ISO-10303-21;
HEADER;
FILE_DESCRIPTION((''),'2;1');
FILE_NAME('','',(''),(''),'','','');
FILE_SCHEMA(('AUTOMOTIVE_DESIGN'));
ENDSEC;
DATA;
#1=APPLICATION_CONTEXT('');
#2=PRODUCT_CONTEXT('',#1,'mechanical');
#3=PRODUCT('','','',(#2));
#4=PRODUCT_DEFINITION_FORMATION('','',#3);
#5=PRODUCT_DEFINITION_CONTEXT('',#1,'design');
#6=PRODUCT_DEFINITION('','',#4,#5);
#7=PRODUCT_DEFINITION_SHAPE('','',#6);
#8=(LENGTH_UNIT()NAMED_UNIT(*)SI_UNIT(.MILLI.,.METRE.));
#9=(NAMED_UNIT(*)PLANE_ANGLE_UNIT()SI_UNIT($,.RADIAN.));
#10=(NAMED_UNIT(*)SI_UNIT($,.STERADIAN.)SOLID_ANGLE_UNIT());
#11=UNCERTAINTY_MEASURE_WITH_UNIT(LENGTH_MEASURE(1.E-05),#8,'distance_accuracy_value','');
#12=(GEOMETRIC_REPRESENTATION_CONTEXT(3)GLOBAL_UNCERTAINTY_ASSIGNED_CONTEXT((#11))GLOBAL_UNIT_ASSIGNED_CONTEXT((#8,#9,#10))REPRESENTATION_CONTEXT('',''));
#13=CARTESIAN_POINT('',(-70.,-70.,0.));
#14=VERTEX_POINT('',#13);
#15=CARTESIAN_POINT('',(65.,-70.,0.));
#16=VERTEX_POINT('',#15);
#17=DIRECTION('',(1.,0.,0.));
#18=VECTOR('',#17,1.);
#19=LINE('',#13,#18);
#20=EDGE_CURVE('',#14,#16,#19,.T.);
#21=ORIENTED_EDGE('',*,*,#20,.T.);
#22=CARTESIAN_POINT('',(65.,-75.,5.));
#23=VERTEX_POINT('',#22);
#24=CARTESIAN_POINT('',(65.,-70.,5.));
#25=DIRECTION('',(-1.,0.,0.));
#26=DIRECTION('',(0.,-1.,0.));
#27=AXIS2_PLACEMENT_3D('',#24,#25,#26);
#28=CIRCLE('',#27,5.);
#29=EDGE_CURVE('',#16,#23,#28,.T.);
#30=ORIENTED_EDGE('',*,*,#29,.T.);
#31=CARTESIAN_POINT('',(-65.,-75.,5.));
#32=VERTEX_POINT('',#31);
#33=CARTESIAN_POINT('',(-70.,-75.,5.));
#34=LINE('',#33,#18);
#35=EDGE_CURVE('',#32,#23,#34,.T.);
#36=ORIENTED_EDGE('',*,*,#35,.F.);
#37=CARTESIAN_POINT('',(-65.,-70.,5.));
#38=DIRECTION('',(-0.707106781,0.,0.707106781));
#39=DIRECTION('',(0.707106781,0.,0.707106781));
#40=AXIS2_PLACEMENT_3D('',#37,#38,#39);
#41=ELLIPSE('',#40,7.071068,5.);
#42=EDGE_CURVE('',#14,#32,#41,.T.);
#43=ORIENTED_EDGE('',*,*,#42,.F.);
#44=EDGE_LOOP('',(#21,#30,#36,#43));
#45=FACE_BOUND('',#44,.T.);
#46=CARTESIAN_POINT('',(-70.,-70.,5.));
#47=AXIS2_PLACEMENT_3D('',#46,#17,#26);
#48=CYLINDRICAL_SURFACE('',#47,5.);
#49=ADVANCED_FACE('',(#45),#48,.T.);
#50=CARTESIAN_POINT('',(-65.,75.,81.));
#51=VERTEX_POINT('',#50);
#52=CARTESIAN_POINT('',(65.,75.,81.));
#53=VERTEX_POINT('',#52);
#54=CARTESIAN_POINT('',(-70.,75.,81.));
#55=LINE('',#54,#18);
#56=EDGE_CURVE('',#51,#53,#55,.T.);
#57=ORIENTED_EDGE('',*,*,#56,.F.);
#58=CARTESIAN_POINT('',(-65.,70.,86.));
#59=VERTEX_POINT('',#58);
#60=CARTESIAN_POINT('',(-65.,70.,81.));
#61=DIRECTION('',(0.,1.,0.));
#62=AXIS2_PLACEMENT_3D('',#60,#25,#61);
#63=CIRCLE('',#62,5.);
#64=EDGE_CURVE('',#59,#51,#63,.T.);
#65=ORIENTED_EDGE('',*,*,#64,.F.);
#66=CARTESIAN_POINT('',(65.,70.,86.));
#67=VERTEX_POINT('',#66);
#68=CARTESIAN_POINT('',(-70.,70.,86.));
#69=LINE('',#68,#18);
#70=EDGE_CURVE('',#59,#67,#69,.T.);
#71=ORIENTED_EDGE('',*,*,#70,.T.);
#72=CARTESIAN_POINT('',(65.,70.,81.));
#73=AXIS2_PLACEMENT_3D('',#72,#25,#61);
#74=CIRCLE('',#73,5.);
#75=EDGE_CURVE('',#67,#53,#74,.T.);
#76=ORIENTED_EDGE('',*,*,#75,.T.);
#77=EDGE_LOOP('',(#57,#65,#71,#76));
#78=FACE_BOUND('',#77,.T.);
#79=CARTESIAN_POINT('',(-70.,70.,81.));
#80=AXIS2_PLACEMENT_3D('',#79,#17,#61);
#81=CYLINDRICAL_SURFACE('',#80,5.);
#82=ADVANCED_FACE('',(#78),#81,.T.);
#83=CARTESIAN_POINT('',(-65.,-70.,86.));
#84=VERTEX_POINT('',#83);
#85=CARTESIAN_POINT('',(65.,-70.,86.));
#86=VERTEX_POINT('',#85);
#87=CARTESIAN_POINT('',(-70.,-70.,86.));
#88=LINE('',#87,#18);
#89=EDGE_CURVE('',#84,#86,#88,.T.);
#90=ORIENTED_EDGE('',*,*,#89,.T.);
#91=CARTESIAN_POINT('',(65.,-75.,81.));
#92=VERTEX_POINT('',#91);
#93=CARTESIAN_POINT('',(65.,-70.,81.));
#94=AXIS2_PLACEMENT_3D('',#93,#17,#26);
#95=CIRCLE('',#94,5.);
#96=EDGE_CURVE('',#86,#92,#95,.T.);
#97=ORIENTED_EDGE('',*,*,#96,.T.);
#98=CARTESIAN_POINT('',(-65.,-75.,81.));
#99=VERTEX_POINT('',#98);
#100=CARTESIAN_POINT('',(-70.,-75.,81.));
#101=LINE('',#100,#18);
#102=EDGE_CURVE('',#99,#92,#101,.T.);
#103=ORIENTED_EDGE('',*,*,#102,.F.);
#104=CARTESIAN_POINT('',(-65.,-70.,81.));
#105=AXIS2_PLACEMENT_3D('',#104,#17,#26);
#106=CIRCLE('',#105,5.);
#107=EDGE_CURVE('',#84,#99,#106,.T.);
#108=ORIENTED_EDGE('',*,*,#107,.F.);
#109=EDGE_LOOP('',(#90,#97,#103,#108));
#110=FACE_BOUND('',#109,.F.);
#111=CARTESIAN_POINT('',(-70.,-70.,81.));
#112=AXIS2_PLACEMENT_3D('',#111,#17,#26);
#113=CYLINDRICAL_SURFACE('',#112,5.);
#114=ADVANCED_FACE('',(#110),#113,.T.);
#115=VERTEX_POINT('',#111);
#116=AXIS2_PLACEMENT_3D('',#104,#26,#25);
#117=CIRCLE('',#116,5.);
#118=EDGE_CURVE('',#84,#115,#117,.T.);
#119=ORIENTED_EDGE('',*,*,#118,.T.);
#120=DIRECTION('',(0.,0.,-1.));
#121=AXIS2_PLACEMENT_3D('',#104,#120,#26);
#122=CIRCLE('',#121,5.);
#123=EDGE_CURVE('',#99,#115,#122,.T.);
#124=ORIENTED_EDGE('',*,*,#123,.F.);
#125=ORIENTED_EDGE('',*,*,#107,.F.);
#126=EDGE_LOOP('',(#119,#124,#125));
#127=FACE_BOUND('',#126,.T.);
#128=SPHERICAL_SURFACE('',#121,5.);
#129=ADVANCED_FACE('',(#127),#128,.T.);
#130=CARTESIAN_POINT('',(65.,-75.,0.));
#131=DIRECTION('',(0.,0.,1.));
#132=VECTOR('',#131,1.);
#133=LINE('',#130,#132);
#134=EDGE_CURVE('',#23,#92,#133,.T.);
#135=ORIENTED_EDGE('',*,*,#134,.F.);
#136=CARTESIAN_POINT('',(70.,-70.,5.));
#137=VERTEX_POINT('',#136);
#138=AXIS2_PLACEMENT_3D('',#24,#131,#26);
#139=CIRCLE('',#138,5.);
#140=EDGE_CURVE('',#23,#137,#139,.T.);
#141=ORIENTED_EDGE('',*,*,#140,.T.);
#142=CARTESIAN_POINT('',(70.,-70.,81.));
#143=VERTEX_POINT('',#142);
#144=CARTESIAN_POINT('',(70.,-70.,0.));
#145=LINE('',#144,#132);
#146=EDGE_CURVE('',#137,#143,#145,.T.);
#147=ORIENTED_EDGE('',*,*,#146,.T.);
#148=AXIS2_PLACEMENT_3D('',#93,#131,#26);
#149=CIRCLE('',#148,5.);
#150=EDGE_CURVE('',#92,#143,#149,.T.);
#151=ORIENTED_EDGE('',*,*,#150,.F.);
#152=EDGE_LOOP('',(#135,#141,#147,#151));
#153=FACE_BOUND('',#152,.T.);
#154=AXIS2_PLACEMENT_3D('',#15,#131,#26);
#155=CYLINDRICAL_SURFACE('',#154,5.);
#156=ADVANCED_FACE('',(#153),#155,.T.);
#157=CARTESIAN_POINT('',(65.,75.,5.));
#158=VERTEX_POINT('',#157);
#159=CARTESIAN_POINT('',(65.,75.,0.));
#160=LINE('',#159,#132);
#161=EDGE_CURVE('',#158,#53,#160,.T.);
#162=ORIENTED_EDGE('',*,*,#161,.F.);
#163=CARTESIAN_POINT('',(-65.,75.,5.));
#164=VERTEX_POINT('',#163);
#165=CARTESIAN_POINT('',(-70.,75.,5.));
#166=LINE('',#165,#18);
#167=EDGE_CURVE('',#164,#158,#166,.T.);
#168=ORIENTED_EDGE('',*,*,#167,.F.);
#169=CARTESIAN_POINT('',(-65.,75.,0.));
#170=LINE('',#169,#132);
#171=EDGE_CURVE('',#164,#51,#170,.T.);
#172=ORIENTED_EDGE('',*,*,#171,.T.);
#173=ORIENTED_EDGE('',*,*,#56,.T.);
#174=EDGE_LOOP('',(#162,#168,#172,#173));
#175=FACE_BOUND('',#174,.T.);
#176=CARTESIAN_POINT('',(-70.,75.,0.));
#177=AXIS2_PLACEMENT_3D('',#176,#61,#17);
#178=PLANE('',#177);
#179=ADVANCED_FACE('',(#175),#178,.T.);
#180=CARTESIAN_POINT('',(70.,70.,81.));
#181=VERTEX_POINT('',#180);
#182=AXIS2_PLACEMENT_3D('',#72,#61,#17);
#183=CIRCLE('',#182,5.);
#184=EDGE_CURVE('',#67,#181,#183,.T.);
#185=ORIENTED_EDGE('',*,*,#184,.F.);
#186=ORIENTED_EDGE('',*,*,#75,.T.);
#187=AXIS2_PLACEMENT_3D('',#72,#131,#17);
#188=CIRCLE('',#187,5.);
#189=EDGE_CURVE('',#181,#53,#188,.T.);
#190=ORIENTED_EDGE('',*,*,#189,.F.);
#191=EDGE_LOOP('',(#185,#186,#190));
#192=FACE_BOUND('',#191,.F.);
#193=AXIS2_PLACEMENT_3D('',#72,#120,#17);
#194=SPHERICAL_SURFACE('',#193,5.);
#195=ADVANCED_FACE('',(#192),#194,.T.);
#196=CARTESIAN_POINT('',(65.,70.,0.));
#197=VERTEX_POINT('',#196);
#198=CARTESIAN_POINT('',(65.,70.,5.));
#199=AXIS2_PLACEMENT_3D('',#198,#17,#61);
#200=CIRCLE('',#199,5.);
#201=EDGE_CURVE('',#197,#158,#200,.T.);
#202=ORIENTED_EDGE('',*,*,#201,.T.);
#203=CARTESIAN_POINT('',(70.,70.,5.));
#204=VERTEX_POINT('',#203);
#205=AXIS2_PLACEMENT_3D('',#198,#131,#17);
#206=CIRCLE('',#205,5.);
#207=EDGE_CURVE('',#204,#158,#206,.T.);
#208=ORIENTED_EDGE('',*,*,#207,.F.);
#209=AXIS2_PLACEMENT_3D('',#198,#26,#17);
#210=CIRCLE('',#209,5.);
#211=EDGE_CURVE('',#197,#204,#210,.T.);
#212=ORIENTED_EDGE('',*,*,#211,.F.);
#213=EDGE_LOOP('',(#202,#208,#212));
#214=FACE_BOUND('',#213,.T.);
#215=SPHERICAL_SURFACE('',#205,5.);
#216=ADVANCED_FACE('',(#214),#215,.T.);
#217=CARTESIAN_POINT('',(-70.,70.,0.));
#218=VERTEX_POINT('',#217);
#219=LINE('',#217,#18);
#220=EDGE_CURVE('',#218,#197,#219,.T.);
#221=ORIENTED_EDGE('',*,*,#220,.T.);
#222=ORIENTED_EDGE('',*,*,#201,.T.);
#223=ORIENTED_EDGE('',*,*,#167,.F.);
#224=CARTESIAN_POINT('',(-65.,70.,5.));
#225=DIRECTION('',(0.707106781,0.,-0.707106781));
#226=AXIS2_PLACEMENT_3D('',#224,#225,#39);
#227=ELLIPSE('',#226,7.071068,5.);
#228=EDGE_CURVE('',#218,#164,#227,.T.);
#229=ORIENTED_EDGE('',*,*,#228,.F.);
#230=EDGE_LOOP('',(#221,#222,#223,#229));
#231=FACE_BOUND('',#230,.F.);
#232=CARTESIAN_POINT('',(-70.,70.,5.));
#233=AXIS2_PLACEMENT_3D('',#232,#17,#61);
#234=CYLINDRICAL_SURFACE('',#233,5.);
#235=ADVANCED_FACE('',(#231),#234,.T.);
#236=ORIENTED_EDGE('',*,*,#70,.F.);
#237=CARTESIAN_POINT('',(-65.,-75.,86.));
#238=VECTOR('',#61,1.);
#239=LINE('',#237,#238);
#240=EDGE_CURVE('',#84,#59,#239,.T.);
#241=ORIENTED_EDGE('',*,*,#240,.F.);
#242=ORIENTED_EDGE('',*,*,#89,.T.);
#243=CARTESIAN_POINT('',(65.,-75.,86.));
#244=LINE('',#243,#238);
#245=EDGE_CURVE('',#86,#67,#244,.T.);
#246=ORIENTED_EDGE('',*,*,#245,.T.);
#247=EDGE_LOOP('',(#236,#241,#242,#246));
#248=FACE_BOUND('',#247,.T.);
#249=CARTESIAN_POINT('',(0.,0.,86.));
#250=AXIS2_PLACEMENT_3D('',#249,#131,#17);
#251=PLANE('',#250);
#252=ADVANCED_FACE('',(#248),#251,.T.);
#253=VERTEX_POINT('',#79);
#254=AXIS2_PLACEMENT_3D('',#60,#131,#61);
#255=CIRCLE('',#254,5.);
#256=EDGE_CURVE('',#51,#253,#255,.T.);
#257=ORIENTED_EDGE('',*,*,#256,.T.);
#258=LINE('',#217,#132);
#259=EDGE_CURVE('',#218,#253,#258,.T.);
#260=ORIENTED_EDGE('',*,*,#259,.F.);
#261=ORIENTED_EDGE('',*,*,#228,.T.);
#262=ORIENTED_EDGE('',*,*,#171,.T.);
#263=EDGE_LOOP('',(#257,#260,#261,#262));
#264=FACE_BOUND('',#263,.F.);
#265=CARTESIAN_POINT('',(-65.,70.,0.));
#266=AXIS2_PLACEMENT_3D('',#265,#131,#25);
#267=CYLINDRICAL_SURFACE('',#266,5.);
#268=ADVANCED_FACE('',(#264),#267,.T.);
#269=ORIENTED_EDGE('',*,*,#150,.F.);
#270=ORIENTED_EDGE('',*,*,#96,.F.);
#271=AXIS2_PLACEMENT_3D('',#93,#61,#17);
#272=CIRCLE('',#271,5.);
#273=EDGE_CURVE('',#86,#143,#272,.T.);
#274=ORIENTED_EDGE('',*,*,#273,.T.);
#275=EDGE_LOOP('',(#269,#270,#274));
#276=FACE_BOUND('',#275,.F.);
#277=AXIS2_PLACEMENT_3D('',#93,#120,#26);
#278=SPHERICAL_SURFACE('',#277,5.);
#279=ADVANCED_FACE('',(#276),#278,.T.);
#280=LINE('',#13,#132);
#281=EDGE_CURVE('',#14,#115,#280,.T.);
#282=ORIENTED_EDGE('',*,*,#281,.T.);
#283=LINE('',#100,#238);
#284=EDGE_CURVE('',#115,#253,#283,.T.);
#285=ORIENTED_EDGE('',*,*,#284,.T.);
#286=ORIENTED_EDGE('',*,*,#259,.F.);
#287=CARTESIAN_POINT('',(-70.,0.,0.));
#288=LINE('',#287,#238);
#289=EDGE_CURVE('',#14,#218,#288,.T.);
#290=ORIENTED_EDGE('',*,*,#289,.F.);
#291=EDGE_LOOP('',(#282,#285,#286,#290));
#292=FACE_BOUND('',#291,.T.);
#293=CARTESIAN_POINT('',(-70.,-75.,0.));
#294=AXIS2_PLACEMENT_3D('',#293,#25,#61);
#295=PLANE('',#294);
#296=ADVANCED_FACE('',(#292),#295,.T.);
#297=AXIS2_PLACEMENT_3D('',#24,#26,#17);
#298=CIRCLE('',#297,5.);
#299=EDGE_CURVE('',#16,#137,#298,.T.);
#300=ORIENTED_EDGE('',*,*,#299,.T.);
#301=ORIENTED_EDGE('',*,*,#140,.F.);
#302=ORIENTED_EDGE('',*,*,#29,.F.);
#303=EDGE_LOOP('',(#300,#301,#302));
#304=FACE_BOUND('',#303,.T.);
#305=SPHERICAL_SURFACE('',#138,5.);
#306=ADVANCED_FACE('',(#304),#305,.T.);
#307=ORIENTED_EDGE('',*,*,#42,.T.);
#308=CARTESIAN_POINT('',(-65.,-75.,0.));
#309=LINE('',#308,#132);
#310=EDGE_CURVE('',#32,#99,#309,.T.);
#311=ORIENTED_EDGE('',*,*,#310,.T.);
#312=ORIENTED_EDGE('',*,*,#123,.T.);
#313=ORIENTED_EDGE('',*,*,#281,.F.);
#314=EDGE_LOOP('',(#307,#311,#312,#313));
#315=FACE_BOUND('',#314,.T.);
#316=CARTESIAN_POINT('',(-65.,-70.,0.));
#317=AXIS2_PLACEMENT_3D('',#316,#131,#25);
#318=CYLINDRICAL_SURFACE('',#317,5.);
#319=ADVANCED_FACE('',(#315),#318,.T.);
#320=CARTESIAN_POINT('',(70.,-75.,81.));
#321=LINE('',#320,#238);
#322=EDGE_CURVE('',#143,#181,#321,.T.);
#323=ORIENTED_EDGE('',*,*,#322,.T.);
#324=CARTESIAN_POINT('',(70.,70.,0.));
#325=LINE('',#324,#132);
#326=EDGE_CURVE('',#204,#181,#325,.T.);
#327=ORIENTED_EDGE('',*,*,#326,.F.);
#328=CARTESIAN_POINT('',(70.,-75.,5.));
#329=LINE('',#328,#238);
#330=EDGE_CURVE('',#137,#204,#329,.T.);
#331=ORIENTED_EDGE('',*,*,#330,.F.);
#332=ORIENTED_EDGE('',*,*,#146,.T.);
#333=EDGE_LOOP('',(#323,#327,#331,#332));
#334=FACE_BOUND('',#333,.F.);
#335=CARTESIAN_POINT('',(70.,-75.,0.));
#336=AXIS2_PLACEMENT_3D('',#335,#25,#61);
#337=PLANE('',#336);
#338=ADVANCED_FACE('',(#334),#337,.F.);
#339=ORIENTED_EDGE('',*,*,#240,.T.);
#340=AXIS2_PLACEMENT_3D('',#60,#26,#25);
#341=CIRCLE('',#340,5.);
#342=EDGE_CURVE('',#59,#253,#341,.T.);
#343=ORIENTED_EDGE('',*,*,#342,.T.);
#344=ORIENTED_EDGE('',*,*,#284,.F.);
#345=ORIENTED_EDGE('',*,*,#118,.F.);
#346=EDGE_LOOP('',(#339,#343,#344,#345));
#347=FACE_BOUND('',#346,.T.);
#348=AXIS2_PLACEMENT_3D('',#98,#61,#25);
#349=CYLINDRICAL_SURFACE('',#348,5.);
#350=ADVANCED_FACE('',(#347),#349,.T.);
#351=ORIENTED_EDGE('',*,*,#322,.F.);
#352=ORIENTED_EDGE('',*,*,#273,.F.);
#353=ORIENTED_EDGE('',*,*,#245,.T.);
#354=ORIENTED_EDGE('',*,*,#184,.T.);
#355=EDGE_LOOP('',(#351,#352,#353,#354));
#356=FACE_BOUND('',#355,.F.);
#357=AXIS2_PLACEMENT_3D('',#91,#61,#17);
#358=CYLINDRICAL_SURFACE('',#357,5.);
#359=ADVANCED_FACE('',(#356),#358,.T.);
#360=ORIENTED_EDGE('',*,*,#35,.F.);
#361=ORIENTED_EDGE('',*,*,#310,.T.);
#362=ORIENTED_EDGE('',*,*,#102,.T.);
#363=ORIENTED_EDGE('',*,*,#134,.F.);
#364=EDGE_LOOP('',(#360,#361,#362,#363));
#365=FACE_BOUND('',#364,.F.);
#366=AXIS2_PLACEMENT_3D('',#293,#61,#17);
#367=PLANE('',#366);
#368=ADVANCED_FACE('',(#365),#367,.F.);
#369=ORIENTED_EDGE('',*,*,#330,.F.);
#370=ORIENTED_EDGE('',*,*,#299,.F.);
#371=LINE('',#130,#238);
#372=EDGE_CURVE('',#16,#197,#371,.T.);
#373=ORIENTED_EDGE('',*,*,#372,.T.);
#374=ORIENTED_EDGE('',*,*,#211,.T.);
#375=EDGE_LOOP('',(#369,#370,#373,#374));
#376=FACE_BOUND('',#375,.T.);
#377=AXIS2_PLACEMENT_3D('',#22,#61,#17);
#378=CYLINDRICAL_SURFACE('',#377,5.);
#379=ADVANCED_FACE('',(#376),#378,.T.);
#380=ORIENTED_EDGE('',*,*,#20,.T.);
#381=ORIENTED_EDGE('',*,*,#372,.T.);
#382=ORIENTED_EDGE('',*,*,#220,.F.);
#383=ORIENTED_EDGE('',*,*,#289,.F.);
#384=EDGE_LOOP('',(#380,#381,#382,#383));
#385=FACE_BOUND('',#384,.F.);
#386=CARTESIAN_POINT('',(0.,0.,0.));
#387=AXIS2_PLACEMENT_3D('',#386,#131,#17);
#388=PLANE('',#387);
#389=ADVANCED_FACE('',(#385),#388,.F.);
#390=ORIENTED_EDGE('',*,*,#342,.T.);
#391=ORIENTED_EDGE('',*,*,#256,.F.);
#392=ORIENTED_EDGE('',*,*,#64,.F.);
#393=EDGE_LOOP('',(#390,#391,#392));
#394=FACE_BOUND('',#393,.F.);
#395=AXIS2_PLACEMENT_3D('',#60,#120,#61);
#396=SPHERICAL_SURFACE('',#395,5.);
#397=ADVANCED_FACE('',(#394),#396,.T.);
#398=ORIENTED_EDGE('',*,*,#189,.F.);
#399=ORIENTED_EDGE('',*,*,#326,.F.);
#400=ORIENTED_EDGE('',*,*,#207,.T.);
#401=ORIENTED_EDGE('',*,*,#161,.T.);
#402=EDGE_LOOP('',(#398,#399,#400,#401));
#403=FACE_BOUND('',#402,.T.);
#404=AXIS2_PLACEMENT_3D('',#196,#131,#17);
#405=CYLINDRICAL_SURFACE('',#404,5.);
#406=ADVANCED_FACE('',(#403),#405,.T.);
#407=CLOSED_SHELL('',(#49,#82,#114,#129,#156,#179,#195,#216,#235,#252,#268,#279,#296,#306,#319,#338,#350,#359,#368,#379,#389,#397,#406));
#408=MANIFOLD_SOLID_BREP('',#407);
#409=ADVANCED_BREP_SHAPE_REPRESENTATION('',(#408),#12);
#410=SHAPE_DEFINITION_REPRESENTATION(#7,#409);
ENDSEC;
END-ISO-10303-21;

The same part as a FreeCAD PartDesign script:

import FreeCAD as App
import Part
import Sketcher


def edges_at(feature, points):
    """Names of the edges that pass closest to the given points."""
    edges = feature.Shape.Edges
    near = lambda p: min(range(len(edges)), key=lambda i: edges[i].distToShape(Part.Vertex(*p))[0])
    return sorted({f"Edge{near(p) + 1}" for p in points})


def add_polygon(sketch, points):
    """Adds a closed chain of lines whose ends are joined by coincident constraints."""
    first, n = sketch.GeometryCount, len(points)
    for a, b in zip(points, points[1:] + points[:1]):
        sketch.addGeometry(Part.LineSegment(App.Vector(*a, 0), App.Vector(*b, 0)), False)
    for i in range(n):
        sketch.addConstraint(Sketcher.Constraint("Coincident", first + i, 2, first + (i + 1) % n, 1))

doc = App.newDocument("Part")
body = doc.addObject("PartDesign::Body", "Body")

# Sketch on XY plane
sketch1 = body.newObject("Sketcher::SketchObject", "Sketch")
sketch1.AttachmentSupport = (doc.getObject("XY_Plane"), [""])
sketch1.MapMode = "FlatFace"
add_polygon(sketch1, [(-70, 75), (-70, -75), (70, -75), (70, 75)])  # lines 0-3
sketch1.addConstraint([
    Sketcher.Constraint("Vertical", 0),
    Sketcher.Constraint("Horizontal", 1),
    Sketcher.Constraint("Vertical", 2),
    Sketcher.Constraint("Horizontal", 3),
    Sketcher.Constraint("Symmetric", 0, 2, 2, 2, -1, 1),
    Sketcher.Constraint("DistanceX", 1, 1, 1, 2, 140.0),
    Sketcher.Constraint("DistanceY", 0, 2, 0, 1, 150.0),
])
pad1 = body.newObject("PartDesign::Pad", "Pad")
pad1.Profile = sketch1
pad1.Length = 86
doc.recompute()

fillet = body.newObject("PartDesign::Fillet", "Fillet")
fillet.Base = (pad1, edges_at(pad1, [
    (-70, -75, 43),
    (70, -75, 43),
    (0, -75, 0),
    (0, -75, 86),
    (70, 75, 43),
    (70, 0, 0),
    (70, 0, 86),
    (-70, 75, 43),
    (0, 75, 0),
    (0, 75, 86),
    (-70, 0, 86),
]))
fillet.Radius = 5

doc.recompute()
